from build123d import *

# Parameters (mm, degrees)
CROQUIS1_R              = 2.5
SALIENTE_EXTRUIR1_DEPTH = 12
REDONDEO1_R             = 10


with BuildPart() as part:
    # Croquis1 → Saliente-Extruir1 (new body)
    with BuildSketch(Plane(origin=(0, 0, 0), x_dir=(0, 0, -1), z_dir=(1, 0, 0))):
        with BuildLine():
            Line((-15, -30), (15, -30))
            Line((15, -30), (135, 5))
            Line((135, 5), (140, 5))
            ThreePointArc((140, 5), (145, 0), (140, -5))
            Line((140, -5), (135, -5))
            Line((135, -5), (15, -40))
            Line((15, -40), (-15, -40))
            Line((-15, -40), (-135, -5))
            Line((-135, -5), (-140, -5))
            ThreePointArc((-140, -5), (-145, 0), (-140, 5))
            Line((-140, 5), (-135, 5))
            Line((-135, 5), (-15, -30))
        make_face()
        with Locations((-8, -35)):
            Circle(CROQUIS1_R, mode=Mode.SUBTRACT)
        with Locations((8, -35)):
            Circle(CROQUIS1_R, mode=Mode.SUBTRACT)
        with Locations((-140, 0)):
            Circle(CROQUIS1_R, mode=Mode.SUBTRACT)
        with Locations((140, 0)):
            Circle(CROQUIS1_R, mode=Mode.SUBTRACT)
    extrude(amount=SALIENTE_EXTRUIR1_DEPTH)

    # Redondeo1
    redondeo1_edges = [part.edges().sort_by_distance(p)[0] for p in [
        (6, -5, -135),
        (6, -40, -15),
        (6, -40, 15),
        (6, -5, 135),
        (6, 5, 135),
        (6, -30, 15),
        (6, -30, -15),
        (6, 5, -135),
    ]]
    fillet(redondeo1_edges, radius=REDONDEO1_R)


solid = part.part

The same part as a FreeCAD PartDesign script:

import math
import FreeCAD as App
import Part
import Sketcher
Q = App.Units.Quantity


def edges_at(feature, points):
    """Names of the edges that pass closest to the given points."""
    edges = feature.Shape.Edges
    near = lambda p: min(range(len(edges)), key=lambda i: edges[i].distToShape(Part.Vertex(*p))[0])
    return sorted({f"Edge{near(p) + 1}" for p in points})

doc = App.newDocument("Part")
params = doc.addObject("Spreadsheet::Sheet", "Params")
for row, (alias, value) in enumerate([
    ("sketch1_diameter", "5 mm"),
    ("sketch1_radius", "5 mm"),
    ("sketch1_height", "30 mm"),
    ("sketch1_height2", "5 mm"),
    ("sketch1_length", "125 mm"),
    ("pad1_length", "12 mm"),
    ("fillet_radius", "10 mm"),
], start=1):
    params.set(f"A{row}", alias)
    params.set(f"B{row}", "=" + value)
    params.setAlias(f"B{row}", alias)

body = doc.addObject("PartDesign::Body", "Body")

sketch1 = body.newObject("Sketcher::SketchObject", "Sketch")
sketch1.AttachmentSupport = (doc.getObject("YZ_Plane"), [""])
sketch1.MapMode = "FlatFace"
sketch1.addGeometry([
    Part.LineSegment(App.Vector(-30, -15, 0), App.Vector(-30, 15, 0)),
    Part.LineSegment(App.Vector(-30, 15, 0), App.Vector(5, 135, 0)),
    Part.LineSegment(App.Vector(5, 135, 0), App.Vector(5, 140, 0)),
    Part.ArcOfCircle(Part.Circle(App.Vector(0, 140, 0), App.Vector(0, 0, 1), 5), math.radians(0), math.radians(180)),
    Part.LineSegment(App.Vector(-5, 140, 0), App.Vector(-5, 135, 0)),
    Part.LineSegment(App.Vector(-5, 135, 0), App.Vector(-40, 15, 0)),
    Part.LineSegment(App.Vector(-40, 15, 0), App.Vector(-40, -15, 0)),
    Part.LineSegment(App.Vector(-40, -15, 0), App.Vector(-5, -135, 0)),
    Part.LineSegment(App.Vector(-5, -135, 0), App.Vector(-5, -140, 0)),
    Part.ArcOfCircle(Part.Circle(App.Vector(0, -140, 0), App.Vector(0, 0, 1), 5), math.radians(180), math.radians(360)),
    Part.LineSegment(App.Vector(5, -140, 0), App.Vector(5, -135, 0)),
    Part.LineSegment(App.Vector(5, -135, 0), App.Vector(-30, -15, 0)),
    Part.Circle(App.Vector(-35, -8, 0), App.Vector(0, 0, 1), 2.5),
    Part.Circle(App.Vector(-35, 8, 0), App.Vector(0, 0, 1), 2.5),
    Part.Circle(App.Vector(0, -140, 0), App.Vector(0, 0, 1), 2.5),
    Part.Circle(App.Vector(0, 140, 0), App.Vector(0, 0, 1), 2.5),
], False)
sketch1.addConstraint([
    Sketcher.Constraint("Coincident", 0, 2, 1, 1),
    Sketcher.Constraint("Coincident", 1, 2, 2, 1),
    Sketcher.Constraint("Tangent", 2, 2, 3, 1),
    Sketcher.Constraint("Tangent", 3, 2, 4, 1),
    Sketcher.Constraint("Coincident", 4, 2, 5, 1),
    Sketcher.Constraint("Coincident", 5, 2, 6, 1),
    Sketcher.Constraint("Coincident", 6, 2, 7, 1),
    Sketcher.Constraint("Coincident", 7, 2, 8, 1),
    Sketcher.Constraint("Tangent", 8, 2, 9, 1),
    Sketcher.Constraint("Tangent", 9, 2, 10, 1),
    Sketcher.Constraint("Coincident", 10, 2, 11, 1),
    Sketcher.Constraint("Coincident", 11, 2, 0, 1),
    Sketcher.Constraint("Vertical", 0),
    Sketcher.Constraint("Vertical", 2),
    Sketcher.Constraint("Vertical", 4),
    Sketcher.Constraint("Vertical", 6),
    Sketcher.Constraint("Vertical", 8),
    Sketcher.Constraint("Vertical", 10),
    Sketcher.Constraint("Coincident", 14, 3, 9, 3),
    Sketcher.Constraint("Coincident", 15, 3, 3, 3),
    Sketcher.Constraint("Equal", 3, 9),
    Sketcher.Constraint("Equal", 12, 13),
    Sketcher.Constraint("Equal", 13, 14),
    Sketcher.Constraint("Equal", 14, 15),
    Sketcher.Constraint("Symmetric", 3, 3, 9, 3, -1, 1),
    Sketcher.Constraint("Symmetric", 1, 2, 4, 2, -2),
    Sketcher.Constraint("Symmetric", 12, 3, 13, 3, -1),
    Sketcher.Constraint("Parallel", 1, 5),
    Sketcher.Constraint("Parallel", 7, 11),
    Sketcher.Constraint("Horizontal", 0, 2, 5, 2),
    Sketcher.Constraint("Horizontal", 7, 2, 10, 2),
    Sketcher.Constraint("Equal", 4, 8),
    Sketcher.Constraint("Equal", 5, 7),
    Sketcher.Constraint("Diameter", 12, Q("5 mm")),
    Sketcher.Constraint("Radius", 3, Q("5 mm")),
    Sketcher.Constraint("DistanceY", 0, 1, 0, 2, Q("30 mm")),
    Sketcher.Constraint("DistanceY", 2, 1, 2, 2, Q("5 mm")),
    Sketcher.Constraint("Distance", 1, Q("125 mm")),
    Sketcher.Constraint("DistanceY", -1, 1, 3, 3, Q("140 mm")),
    Sketcher.Constraint("DistanceX", 12, 3, -1, 1, Q("35 mm")),
    Sketcher.Constraint("DistanceY", 12, 3, -1, 1, Q("8 mm")),
])
sketch1.setExpression("Constraints[33]", "Params.sketch1_diameter")
sketch1.setExpression("Constraints[34]", "Params.sketch1_radius")
sketch1.setExpression("Constraints[35]", "Params.sketch1_height")
sketch1.setExpression("Constraints[36]", "Params.sketch1_height2")
sketch1.setExpression("Constraints[37]", "Params.sketch1_length")
pad1 = body.newObject("PartDesign::Pad", "Pad")
pad1.Profile = sketch1
pad1.setExpression("Length", "Params.pad1_length")
doc.recompute()

fillet = body.newObject("PartDesign::Fillet", "Fillet")
fillet.Base = (pad1, edges_at(pad1, [
    (6, -5, -135),
    (6, -40, -15),
    (6, -40, 15),
    (6, -5, 135),
    (6, 5, 135),
    (6, -30, 15),
    (6, -30, -15),
    (6, 5, -135),
]))
fillet.setExpression("Radius", "Params.fillet_radius")

doc.recompute()
